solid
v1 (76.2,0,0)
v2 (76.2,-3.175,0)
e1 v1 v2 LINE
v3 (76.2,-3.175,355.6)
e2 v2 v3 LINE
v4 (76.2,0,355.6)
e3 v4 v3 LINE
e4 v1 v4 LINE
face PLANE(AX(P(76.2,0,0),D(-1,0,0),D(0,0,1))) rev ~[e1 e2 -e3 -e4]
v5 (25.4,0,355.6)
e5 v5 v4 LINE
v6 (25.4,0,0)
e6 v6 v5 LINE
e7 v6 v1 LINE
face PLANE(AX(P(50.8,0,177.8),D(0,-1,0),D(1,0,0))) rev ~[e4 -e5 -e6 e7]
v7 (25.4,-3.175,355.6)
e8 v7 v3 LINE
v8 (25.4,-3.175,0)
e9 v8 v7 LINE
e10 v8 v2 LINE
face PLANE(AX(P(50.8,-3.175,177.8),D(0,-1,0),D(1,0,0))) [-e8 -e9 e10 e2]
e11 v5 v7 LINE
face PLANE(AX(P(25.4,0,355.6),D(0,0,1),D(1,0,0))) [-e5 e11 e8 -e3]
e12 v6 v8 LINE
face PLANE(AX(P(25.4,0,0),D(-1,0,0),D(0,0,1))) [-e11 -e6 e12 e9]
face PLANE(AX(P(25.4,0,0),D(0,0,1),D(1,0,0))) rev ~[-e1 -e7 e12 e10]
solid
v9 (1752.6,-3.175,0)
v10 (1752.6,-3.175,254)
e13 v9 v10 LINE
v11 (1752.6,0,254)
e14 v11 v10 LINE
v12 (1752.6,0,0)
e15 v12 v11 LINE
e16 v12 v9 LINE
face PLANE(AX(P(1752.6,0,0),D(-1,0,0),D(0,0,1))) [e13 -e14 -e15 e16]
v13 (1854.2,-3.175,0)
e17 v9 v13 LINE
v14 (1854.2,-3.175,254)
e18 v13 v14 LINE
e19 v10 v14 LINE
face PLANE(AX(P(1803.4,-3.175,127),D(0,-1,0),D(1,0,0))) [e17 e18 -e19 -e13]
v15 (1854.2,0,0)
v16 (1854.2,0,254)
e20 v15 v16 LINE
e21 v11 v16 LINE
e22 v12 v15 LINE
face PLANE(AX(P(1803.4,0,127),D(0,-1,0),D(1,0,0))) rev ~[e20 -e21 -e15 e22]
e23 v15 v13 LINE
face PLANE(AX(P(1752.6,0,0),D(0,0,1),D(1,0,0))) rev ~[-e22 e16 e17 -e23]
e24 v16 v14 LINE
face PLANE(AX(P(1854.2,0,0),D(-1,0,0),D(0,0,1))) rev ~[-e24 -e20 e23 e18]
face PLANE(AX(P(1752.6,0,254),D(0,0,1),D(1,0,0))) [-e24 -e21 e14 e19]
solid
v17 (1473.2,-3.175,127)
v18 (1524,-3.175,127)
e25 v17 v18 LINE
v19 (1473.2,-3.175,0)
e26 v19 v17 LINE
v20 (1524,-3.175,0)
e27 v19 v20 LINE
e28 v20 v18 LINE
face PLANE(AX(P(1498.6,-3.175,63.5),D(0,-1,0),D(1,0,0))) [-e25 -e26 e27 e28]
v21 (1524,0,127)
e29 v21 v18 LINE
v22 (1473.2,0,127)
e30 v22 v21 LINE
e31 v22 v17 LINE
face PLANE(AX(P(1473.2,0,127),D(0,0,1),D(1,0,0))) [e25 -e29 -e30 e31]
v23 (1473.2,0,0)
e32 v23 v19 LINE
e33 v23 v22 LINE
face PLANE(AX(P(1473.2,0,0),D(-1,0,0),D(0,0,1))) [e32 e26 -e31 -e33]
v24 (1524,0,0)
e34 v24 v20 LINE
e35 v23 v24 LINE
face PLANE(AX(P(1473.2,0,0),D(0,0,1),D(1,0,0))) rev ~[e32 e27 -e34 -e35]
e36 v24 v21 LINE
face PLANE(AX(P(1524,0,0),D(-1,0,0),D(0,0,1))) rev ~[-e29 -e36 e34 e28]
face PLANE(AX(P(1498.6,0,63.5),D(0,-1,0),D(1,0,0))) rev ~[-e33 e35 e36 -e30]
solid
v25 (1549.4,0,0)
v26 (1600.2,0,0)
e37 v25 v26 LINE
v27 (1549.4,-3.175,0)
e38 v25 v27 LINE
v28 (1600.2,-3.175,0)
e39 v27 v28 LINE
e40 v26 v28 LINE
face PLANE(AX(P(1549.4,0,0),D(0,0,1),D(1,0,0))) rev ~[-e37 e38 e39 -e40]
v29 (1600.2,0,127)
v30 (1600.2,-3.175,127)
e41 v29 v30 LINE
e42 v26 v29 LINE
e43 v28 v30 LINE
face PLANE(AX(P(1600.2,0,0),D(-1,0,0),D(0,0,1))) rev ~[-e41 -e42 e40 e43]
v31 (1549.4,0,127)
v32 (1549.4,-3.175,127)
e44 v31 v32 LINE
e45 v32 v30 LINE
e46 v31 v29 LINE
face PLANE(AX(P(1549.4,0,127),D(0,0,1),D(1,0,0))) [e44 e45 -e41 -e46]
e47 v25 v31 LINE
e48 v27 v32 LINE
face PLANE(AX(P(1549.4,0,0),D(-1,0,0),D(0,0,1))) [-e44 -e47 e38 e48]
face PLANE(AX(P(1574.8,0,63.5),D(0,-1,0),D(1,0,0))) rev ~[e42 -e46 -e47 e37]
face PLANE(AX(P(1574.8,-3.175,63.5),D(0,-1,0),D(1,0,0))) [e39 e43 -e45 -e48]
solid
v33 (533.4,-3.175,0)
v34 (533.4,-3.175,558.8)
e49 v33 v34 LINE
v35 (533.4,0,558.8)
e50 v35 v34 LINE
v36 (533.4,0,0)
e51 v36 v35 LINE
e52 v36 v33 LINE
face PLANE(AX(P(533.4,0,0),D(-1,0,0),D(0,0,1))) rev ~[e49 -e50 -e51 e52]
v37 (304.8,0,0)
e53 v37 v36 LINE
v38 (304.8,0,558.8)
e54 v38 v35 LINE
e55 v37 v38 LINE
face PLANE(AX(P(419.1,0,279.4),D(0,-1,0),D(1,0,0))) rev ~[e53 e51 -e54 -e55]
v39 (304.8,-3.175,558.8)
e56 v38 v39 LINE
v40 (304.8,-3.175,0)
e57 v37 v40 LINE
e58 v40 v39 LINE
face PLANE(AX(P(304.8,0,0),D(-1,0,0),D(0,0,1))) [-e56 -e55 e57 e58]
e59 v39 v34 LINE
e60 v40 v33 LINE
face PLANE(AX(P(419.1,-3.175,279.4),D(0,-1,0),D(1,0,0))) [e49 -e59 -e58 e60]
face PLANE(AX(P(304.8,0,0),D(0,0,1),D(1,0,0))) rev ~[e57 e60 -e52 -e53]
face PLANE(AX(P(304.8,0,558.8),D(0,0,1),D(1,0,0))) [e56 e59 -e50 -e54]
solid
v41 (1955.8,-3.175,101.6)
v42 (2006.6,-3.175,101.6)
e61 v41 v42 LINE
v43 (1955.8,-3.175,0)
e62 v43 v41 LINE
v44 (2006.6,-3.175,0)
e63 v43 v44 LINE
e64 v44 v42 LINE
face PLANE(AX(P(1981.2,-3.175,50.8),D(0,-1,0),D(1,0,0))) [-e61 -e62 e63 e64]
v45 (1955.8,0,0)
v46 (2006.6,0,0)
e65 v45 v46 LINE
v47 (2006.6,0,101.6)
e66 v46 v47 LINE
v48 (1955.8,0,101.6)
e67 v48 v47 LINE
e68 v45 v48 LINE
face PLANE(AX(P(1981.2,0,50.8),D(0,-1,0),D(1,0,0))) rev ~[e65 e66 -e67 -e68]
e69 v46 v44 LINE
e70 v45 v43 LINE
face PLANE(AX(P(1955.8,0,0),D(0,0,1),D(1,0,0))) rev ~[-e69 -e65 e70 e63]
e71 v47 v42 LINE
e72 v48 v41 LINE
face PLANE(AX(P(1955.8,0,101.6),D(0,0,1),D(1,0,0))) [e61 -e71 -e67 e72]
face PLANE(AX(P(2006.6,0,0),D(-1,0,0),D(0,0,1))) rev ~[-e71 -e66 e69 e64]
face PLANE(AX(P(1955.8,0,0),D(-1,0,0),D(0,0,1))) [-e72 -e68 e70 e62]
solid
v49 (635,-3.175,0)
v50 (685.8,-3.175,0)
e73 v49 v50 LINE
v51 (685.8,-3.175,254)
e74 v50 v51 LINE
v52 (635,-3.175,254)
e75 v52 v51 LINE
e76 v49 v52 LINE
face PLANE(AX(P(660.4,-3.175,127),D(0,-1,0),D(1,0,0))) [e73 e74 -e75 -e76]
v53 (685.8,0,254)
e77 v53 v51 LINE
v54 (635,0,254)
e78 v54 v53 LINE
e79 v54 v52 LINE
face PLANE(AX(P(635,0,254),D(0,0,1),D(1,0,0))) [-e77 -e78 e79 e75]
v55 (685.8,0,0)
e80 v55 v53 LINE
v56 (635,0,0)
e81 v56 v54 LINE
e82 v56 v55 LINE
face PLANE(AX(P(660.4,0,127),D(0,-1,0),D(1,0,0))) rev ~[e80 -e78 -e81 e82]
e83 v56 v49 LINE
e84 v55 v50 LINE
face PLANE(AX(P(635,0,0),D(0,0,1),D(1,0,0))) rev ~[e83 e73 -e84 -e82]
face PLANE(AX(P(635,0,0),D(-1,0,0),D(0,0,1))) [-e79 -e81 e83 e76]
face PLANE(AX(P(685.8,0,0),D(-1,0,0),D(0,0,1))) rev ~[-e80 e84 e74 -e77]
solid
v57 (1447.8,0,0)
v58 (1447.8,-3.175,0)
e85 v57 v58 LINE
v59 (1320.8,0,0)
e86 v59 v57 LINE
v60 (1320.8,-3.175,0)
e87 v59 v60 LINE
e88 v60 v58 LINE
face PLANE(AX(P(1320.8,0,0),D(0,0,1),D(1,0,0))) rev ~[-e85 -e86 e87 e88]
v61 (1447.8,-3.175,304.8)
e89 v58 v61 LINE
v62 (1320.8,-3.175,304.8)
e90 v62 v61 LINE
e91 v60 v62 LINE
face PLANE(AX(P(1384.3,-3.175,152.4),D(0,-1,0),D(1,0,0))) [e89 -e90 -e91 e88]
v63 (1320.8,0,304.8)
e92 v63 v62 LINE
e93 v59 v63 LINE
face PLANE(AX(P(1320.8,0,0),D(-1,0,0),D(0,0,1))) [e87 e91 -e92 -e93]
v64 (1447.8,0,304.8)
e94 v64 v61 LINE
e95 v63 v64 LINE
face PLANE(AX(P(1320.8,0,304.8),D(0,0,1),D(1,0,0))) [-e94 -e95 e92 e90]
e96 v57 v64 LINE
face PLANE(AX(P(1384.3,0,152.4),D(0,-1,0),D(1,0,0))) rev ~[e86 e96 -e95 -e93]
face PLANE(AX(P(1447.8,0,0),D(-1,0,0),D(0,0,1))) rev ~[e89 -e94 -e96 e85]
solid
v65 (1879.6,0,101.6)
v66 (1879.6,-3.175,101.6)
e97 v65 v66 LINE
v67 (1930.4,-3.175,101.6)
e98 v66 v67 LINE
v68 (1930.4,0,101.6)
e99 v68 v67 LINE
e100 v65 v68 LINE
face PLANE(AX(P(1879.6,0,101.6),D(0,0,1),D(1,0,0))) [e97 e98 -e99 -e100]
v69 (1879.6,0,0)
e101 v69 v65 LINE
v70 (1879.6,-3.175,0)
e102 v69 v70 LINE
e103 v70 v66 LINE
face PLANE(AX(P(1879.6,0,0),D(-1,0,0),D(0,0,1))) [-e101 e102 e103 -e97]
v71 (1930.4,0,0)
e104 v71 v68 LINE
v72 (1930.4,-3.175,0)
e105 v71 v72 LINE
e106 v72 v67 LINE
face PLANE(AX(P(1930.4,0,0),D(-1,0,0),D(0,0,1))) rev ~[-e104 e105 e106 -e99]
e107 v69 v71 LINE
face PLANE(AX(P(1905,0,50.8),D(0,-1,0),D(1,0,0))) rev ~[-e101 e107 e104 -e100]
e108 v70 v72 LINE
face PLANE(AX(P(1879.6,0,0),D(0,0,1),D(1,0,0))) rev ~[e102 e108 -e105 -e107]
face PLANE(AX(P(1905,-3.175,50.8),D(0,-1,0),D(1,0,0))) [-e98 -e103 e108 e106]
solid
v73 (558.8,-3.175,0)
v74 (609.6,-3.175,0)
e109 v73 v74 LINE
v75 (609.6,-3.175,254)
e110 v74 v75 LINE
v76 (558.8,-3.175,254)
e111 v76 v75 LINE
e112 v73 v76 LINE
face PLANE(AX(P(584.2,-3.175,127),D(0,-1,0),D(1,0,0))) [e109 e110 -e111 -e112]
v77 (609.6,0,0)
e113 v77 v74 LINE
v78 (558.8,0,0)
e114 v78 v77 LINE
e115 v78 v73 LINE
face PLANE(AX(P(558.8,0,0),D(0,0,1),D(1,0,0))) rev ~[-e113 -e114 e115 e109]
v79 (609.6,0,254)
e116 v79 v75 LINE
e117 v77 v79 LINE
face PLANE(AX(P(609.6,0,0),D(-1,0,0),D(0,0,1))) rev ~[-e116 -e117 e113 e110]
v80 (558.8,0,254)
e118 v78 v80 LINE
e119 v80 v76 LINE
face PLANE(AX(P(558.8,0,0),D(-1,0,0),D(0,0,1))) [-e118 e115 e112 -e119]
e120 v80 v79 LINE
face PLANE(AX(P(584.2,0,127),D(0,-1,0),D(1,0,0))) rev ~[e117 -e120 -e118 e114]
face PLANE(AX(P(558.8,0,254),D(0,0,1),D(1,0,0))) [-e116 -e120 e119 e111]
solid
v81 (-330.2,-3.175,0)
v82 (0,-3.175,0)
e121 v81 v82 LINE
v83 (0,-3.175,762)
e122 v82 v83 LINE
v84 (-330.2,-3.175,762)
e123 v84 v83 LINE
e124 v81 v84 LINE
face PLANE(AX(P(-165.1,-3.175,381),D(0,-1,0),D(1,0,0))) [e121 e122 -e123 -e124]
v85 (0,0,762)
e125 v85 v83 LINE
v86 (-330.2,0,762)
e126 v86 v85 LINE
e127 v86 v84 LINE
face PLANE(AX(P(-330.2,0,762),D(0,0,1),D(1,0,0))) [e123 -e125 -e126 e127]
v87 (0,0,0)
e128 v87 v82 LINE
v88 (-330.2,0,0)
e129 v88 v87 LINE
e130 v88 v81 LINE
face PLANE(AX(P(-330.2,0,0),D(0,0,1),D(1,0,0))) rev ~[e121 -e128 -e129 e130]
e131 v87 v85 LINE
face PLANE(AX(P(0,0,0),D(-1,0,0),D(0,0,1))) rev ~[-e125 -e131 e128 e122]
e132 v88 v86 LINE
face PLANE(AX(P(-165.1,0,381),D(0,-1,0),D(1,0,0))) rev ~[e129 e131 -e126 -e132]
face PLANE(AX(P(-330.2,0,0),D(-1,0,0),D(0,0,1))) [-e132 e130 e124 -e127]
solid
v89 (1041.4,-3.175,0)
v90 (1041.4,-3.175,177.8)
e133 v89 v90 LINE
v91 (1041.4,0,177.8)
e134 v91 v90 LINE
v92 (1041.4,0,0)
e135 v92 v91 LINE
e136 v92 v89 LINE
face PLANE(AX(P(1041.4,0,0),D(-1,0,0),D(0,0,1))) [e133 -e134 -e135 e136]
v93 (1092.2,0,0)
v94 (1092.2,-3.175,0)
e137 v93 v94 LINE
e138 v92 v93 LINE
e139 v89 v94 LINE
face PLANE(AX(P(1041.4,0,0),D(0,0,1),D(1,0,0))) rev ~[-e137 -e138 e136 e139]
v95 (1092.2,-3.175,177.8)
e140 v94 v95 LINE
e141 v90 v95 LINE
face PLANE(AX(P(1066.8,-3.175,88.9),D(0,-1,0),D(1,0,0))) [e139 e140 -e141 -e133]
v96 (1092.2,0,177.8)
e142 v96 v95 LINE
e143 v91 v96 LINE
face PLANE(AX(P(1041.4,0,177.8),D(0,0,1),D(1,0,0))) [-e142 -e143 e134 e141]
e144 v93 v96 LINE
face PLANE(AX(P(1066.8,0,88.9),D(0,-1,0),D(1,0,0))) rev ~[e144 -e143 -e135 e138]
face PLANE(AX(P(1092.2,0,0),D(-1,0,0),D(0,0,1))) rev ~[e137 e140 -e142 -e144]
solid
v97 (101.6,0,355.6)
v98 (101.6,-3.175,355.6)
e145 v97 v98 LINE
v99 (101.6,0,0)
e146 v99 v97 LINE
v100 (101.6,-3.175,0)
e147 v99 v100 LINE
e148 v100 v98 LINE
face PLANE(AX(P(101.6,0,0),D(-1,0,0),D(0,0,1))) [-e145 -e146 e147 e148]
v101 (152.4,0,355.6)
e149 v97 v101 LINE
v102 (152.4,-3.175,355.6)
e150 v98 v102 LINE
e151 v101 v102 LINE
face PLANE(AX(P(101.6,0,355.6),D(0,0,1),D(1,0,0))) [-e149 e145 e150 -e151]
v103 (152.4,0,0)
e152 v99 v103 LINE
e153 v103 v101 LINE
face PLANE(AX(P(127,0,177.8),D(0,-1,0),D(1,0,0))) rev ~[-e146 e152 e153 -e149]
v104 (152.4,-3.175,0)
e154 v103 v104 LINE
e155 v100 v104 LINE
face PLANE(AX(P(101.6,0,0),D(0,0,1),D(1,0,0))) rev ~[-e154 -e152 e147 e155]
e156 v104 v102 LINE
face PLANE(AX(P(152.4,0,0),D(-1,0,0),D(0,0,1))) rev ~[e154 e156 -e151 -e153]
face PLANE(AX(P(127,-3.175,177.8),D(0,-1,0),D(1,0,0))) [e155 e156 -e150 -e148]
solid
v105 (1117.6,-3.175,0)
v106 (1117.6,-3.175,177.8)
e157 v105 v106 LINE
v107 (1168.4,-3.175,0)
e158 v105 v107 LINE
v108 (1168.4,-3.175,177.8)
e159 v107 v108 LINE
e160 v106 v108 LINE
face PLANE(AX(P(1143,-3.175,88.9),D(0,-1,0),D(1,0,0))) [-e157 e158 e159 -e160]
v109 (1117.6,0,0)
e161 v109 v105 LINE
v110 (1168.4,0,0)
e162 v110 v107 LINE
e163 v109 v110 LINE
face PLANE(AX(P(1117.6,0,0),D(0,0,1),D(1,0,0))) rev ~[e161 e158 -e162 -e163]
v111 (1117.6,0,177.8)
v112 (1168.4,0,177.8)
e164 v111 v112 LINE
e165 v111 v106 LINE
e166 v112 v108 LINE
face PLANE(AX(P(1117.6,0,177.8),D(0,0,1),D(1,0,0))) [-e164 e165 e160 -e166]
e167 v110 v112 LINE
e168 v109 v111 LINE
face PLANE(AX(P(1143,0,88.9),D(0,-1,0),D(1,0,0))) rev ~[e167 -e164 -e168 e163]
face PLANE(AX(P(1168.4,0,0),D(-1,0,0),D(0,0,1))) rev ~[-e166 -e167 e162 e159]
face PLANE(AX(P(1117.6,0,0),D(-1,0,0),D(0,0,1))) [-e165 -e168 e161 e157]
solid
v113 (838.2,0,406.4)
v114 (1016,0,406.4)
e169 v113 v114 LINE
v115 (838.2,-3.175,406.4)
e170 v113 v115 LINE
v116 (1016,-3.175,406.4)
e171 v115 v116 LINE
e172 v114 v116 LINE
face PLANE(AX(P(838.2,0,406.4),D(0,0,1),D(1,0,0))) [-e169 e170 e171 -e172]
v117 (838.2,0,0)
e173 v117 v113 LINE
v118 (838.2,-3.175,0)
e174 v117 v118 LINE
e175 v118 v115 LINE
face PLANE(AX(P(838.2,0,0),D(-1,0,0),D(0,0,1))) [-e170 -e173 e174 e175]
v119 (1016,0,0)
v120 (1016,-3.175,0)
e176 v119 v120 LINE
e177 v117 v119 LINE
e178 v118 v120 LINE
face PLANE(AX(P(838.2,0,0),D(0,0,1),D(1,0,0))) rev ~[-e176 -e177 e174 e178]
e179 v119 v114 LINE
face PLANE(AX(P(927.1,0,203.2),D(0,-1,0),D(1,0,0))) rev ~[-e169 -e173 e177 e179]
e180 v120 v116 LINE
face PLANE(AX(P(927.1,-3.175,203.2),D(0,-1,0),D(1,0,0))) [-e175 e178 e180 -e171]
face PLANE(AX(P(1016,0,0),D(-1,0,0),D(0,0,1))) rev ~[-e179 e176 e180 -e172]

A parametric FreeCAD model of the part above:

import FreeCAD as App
import Part
import Sketcher
Q = App.Units.Quantity


def add_polygon(sketch, points):
    """Adds a closed chain of lines whose ends are joined by coincident constraints."""
    first, n = sketch.GeometryCount, len(points)
    for a, b in zip(points, points[1:] + points[:1]):
        sketch.addGeometry(Part.LineSegment(App.Vector(*a, 0), App.Vector(*b, 0)), False)
    for i in range(n):
        sketch.addConstraint(Sketcher.Constraint("Coincident", first + i, 2, first + (i + 1) % n, 1))

doc = App.newDocument("Part")
body = doc.addObject("PartDesign::Body", "Body")
body.AllowCompound = True

sketch1 = doc.addObject("Sketcher::SketchObject", "Sketch")
body.addObject(sketch1)
sketch1.AttachmentSupport = (doc.XZ_Plane, [""])
sketch1.MapMode = "FlatFace"
add_polygon(sketch1, [(-330.2, 762), (-330.2, 0), (0, 0), (0, 762)])
add_polygon(sketch1, [(25.4, 355.6), (25.4, 0), (76.2, 0), (76.2, 355.6)])
add_polygon(sketch1, [(101.6, 355.6), (101.6, 0), (152.4, 0), (152.4, 355.6)])
add_polygon(sketch1, [(304.8, 558.8), (304.8, 0), (533.4, 0), (533.4, 558.8)])
add_polygon(sketch1, [(558.8, 254), (558.8, 0), (609.6, 0), (609.6, 254)])
add_polygon(sketch1, [(635, 254), (635, 0), (685.8, 0), (685.8, 254)])
add_polygon(sketch1, [(838.2, 406.4), (838.2, 0), (1016, 0), (1016, 406.4)])
add_polygon(sketch1, [(1041.4, 177.8), (1041.4, 0), (1092.2, 0), (1092.2, 177.8)])
add_polygon(sketch1, [(1117.6, 177.8), (1117.6, 0), (1168.4, 0), (1168.4, 177.8)])
add_polygon(sketch1, [(1549.4, 127), (1549.4, 0), (1600.2, 0), (1600.2, 127)])
add_polygon(sketch1, [(1473.2, 127), (1473.2, 0), (1524, 0), (1524, 127)])
add_polygon(sketch1, [(1320.8, 304.8), (1320.8, 0), (1447.8, 0), (1447.8, 304.8)])
add_polygon(sketch1, [(1955.8, 101.6), (1955.8, 0), (2006.6, 0), (2006.6, 101.6)])
add_polygon(sketch1, [(1879.6, 101.6), (1879.6, 0), (1930.4, 0), (1930.4, 101.6)])
add_polygon(sketch1, [(1752.6, 254), (1752.6, 0), (1854.2, 0), (1854.2, 254)])
sketch1.addConstraint([
    Sketcher.Constraint("Vertical", 0),
    Sketcher.Constraint("Horizontal", 1),
    Sketcher.Constraint("Vertical", 2),
    Sketcher.Constraint("Horizontal", 3),
    Sketcher.Constraint("Vertical", 4),
    Sketcher.Constraint("Horizontal", 5),
    Sketcher.Constraint("Vertical", 6),
    Sketcher.Constraint("Horizontal", 7),
    Sketcher.Constraint("Vertical", 8),
    Sketcher.Constraint("Horizontal", 9),
    Sketcher.Constraint("Vertical", 10),
    Sketcher.Constraint("Horizontal", 11),
    Sketcher.Constraint("Vertical", 12),
    Sketcher.Constraint("Horizontal", 13),
    Sketcher.Constraint("Vertical", 14),
    Sketcher.Constraint("Horizontal", 15),
    Sketcher.Constraint("Vertical", 16),
    Sketcher.Constraint("Horizontal", 17),
    Sketcher.Constraint("Vertical", 18),
    Sketcher.Constraint("Horizontal", 19),
    Sketcher.Constraint("Vertical", 20),
    Sketcher.Constraint("Horizontal", 21),
    Sketcher.Constraint("Vertical", 22),
    Sketcher.Constraint("Horizontal", 23),
    Sketcher.Constraint("Vertical", 24),
    Sketcher.Constraint("Horizontal", 25),
    Sketcher.Constraint("Vertical", 26),
    Sketcher.Constraint("Horizontal", 27),
    Sketcher.Constraint("Vertical", 28),
    Sketcher.Constraint("Horizontal", 29),
    Sketcher.Constraint("Vertical", 30),
    Sketcher.Constraint("Horizontal", 31),
    Sketcher.Constraint("Vertical", 32),
    Sketcher.Constraint("Horizontal", 33),
    Sketcher.Constraint("Vertical", 34),
    Sketcher.Constraint("Horizontal", 35),
    Sketcher.Constraint("Vertical", 36),
    Sketcher.Constraint("Horizontal", 37),
    Sketcher.Constraint("Vertical", 38),
    Sketcher.Constraint("Horizontal", 39),
    Sketcher.Constraint("Vertical", 40),
    Sketcher.Constraint("Horizontal", 41),
    Sketcher.Constraint("Vertical", 42),
    Sketcher.Constraint("Horizontal", 43),
    Sketcher.Constraint("Vertical", 44),
    Sketcher.Constraint("Horizontal", 45),
    Sketcher.Constraint("Vertical", 46),
    Sketcher.Constraint("Horizontal", 47),
    Sketcher.Constraint("Vertical", 48),
    Sketcher.Constraint("Horizontal", 49),
    Sketcher.Constraint("Vertical", 50),
    Sketcher.Constraint("Horizontal", 51),
    Sketcher.Constraint("Vertical", 52),
    Sketcher.Constraint("Horizontal", 53),
    Sketcher.Constraint("Vertical", 54),
    Sketcher.Constraint("Horizontal", 55),
    Sketcher.Constraint("Vertical", 56),
    Sketcher.Constraint("Horizontal", 57),
    Sketcher.Constraint("Vertical", 58),
    Sketcher.Constraint("Horizontal", 59),
    Sketcher.Constraint("Coincident", 1, 2, -1, 1),
    Sketcher.Constraint("PointOnObject", 4, 2, -1),
    Sketcher.Constraint("PointOnObject", 8, 2, -1),
    Sketcher.Constraint("PointOnObject", 12, 2, -1),
    Sketcher.Constraint("PointOnObject", 16, 2, -1),
    Sketcher.Constraint("PointOnObject", 20, 2, -1),
    Sketcher.Constraint("PointOnObject", 24, 2, -1),
    Sketcher.Constraint("PointOnObject", 28, 2, -1),
    Sketcher.Constraint("PointOnObject", 32, 2, -1),
    Sketcher.Constraint("PointOnObject", 36, 2, -1),
    Sketcher.Constraint("PointOnObject", 40, 2, -1),
    Sketcher.Constraint("PointOnObject", 44, 2, -1),
    Sketcher.Constraint("PointOnObject", 48, 2, -1),
    Sketcher.Constraint("PointOnObject", 52, 2, -1),
    Sketcher.Constraint("PointOnObject", 56, 2, -1),
    Sketcher.Constraint("Horizontal", 7, 2, 10, 2),
    Sketcher.Constraint("Horizontal", 19, 2, 22, 2),
    Sketcher.Constraint("Horizontal", 31, 2, 34, 2),
    Sketcher.Constraint("Horizontal", 39, 2, 42, 2),
    Sketcher.Constraint("Horizontal", 51, 2, 54, 2),
    Sketcher.Constraint("Horizontal", 23, 2, 58, 2),
    Sketcher.Constraint("Equal", 7, 9),
    Sketcher.Constraint("Equal", 11, 17),
    Sketcher.Constraint("Equal", 19, 21),
    Sketcher.Constraint("Equal", 23, 29),
    Sketcher.Constraint("Equal", 31, 33),
    Sketcher.Constraint("Equal", 35, 37),
    Sketcher.Constraint("Equal", 39, 41),
    Sketcher.Constraint("Equal", 43, 49),
    Sketcher.Constraint("Equal", 51, 53),
    Sketcher.Constraint("Equal", 27, 28),
    Sketcher.Constraint("Equal", 47, 36),
    Sketcher.Constraint("Equal", 59, 48),
    Sketcher.Constraint("DistanceX", 1, 1, 1, 2, Q("13 in")),
    Sketcher.Constraint("DistanceX", 5, 1, 5, 2, Q("2 in")),
    Sketcher.Constraint("DistanceX", 13, 1, 13, 2, Q("9 in")),
    Sketcher.Constraint("DistanceX", 25, 1, 25, 2, Q("7 in")),
    Sketcher.Constraint("DistanceX", 45, 1, 45, 2, Q("5 in")),
    Sketcher.Constraint("DistanceX", 57, 1, 57, 2, Q("4 in")),
    Sketcher.Constraint("DistanceY", 0, 2, 0, 1, Q("30 in")),
    Sketcher.Constraint("DistanceY", 4, 2, 4, 1, Q("14 in")),
    Sketcher.Constraint("DistanceY", 12, 2, 12, 1, Q("22 in")),
    Sketcher.Constraint("DistanceY", 16, 2, 16, 1, Q("10 in")),
    Sketcher.Constraint("DistanceY", 24, 2, 24, 1, Q("16 in")),
    Sketcher.Constraint("DistanceY", 44, 2, 44, 1, Q("12 in")),
    Sketcher.Constraint("DistanceX", -1, 1, 4, 2, Q("1 in")),
    Sketcher.Constraint("DistanceX", -1, 1, 8, 2, Q("4 in")),
    Sketcher.Constraint("DistanceX", -1, 1, 12, 2, Q("12 in")),
    Sketcher.Constraint("DistanceX", -1, 1, 16, 2, Q("22 in")),
    Sketcher.Constraint("DistanceX", -1, 1, 20, 2, Q("25 in")),
    Sketcher.Constraint("DistanceX", -1, 1, 24, 2, Q("33 in")),
    Sketcher.Constraint("DistanceX", -1, 1, 28, 2, Q("41 in")),
    Sketcher.Constraint("DistanceX", -1, 1, 32, 2, Q("44 in")),
    Sketcher.Constraint("DistanceX", -1, 1, 36, 2, Q("61 in")),
    Sketcher.Constraint("DistanceX", -1, 1, 40, 2, Q("58 in")),
    Sketcher.Constraint("DistanceX", -1, 1, 44, 2, Q("52 in")),
    Sketcher.Constraint("DistanceX", -1, 1, 48, 2, Q("77 in")),
    Sketcher.Constraint("DistanceX", -1, 1, 52, 2, Q("74 in")),
    Sketcher.Constraint("DistanceX", -1, 1, 56, 2, Q("69 in")),
])
pad1 = doc.addObject("PartDesign::Pad", "Pad")
body.addObject(pad1)
pad1.Profile = sketch1
pad1.Length = Q("0.125 in")

doc.recompute()
